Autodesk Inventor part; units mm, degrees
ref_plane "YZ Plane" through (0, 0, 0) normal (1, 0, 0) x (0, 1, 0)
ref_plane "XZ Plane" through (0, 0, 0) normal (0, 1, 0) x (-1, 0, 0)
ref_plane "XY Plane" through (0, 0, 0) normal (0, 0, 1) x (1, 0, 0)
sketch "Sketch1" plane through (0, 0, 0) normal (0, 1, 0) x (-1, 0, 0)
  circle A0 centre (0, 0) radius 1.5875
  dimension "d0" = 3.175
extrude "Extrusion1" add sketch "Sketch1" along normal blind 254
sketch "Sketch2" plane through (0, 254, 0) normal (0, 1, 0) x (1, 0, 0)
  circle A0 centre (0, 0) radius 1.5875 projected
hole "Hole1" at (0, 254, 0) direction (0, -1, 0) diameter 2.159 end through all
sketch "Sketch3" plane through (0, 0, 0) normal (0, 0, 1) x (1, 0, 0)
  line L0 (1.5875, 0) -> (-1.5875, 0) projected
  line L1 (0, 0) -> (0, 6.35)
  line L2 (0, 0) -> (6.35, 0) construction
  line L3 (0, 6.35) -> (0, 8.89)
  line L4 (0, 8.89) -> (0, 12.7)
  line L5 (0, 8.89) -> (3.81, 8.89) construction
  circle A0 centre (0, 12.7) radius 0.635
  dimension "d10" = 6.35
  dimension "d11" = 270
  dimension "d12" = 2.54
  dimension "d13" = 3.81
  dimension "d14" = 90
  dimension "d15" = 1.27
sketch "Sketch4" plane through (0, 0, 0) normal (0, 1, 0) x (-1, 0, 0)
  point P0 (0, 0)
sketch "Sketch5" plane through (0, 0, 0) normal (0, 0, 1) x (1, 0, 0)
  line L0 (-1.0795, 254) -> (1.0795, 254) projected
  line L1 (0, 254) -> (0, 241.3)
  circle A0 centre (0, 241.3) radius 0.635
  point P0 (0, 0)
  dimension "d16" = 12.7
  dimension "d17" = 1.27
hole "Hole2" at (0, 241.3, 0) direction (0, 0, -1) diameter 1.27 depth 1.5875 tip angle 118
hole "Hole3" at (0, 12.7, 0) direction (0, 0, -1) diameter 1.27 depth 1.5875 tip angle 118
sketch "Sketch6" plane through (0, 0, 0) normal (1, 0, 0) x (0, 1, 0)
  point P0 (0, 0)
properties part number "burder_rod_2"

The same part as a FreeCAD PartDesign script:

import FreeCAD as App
import Part
import Sketcher

V = App.Vector
Q = App.Units.Quantity

doc = App.newDocument("Part")
body = doc.addObject("PartDesign::Body", "Body")

# Sketch on XZ plane
sketch1 = body.newObject("Sketcher::SketchObject", "Sketch")
sketch1.AttachmentSupport = (doc.getObject("XZ_Plane"), [""])
sketch1.MapMode = "FlatFace"
sketch1.addGeometry(Part.Circle(V(0, 0, 0), V(0, 0, 1), 1.5875), False)
sketch1.addConstraint(Sketcher.Constraint("Coincident", 0, 3, -1, 1))
sketch1.addConstraint(Sketcher.Constraint("Diameter", 0, Q("0.125 in")))
pad1 = body.newObject("PartDesign::Pad", "Pad")
pad1.Profile = sketch1
pad1.Length = Q("10 in")
pad1.Reversed = True

# Sketch on XZ plane
sketch2 = body.newObject("Sketcher::SketchObject", "Sketch001")
sketch2.AttachmentSupport = (doc.getObject("XZ_Plane"), [""])
sketch2.MapMode = "FlatFace"
sketch2.AttachmentOffset = App.Placement(V(0, 0, -10 * 25.4), App.Rotation())
sketch2.addGeometry(Part.Circle(V(0, 0, 0), V(0, 0, 1), 1.0795), False)
sketch2.addConstraint(Sketcher.Constraint("Coincident", 0, 3, -1, 1))
sketch2.addConstraint(Sketcher.Constraint("Diameter", 0, Q("0.085 in")))
doc.recompute()
hole = body.newObject("PartDesign::Hole", "Hole")
hole.Profile = sketch2
hole.ThreadType = "None"
hole.Diameter = Q("0.085 in")
hole.DepthType = "ThroughAll"
hole.Reversed = True

# Sketch on XY plane
sketch3 = body.newObject("Sketcher::SketchObject", "Sketch002")
sketch3.AttachmentSupport = (doc.getObject("XY_Plane"), [""])
sketch3.MapMode = "FlatFace"
sketch3.addGeometry(Part.Circle(V(0, 241.3, 0), V(0, 0, 1), 0.635), False)
sketch3.addConstraint(Sketcher.Constraint("PointOnObject", 0, 3, -2))
sketch3.addConstraint(Sketcher.Constraint("Diameter", 0, Q("0.05 in")))
sketch3.addConstraint(Sketcher.Constraint("DistanceY", -1, 1, 0, 3, Q("9.5 in")))
doc.recompute()
hole2 = body.newObject("PartDesign::Hole", "Hole001")
hole2.Profile = sketch3
hole2.ThreadType = "None"
hole2.Diameter = Q("0.05 in")
hole2.DepthType = "Dimension"
hole2.Depth = Q("0.0625 in")
hole2.DrillPoint = "Angled"
hole2.DrillPointAngle = 118

# Sketch on XY plane
sketch4 = body.newObject("Sketcher::SketchObject", "Sketch003")
sketch4.AttachmentSupport = (doc.getObject("XY_Plane"), [""])
sketch4.MapMode = "FlatFace"
sketch4.addGeometry(Part.Circle(V(0, 12.7, 0), V(0, 0, 1), 0.635), False)
sketch4.addConstraint(Sketcher.Constraint("PointOnObject", 0, 3, -2))
sketch4.addConstraint(Sketcher.Constraint("Diameter", 0, Q("0.05 in")))
sketch4.addConstraint(Sketcher.Constraint("DistanceY", -1, 1, 0, 3, Q("0.5 in")))
doc.recompute()
hole3 = body.newObject("PartDesign::Hole", "Hole002")
hole3.Profile = sketch4
hole3.ThreadType = "None"
hole3.Diameter = Q("0.05 in")
hole3.DepthType = "Dimension"
hole3.Depth = Q("0.0625 in")
hole3.DrillPoint = "Angled"
hole3.DrillPointAngle = 118

doc.recompute()
